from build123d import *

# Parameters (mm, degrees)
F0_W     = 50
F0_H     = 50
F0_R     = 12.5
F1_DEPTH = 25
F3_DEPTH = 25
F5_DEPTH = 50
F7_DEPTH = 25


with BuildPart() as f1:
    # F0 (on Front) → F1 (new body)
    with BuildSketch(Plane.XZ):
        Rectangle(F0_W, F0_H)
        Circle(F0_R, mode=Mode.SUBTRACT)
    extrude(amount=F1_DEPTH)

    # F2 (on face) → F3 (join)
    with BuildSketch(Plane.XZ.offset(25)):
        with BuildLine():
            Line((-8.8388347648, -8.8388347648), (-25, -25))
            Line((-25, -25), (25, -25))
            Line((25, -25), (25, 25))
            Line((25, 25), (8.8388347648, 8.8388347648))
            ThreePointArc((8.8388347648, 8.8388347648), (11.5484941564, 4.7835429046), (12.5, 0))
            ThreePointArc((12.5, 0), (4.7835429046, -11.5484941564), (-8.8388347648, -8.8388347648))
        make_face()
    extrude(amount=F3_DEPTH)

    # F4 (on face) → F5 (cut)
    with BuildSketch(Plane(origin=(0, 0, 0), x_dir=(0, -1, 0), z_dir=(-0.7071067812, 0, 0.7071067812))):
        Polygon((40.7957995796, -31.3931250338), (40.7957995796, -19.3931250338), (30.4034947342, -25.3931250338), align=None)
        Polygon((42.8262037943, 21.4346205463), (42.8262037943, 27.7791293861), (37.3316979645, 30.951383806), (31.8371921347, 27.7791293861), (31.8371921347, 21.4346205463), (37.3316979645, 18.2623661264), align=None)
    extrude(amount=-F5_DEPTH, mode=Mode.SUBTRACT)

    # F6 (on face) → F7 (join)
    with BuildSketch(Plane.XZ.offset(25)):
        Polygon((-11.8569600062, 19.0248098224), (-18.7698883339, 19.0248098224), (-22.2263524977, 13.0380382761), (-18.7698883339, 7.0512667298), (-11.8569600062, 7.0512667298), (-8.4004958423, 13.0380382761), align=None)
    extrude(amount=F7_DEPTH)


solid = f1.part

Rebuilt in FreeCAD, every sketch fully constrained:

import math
import FreeCAD as App
import Part
import Sketcher
from FreeCAD import Vector
Q = App.Units.Quantity

doc = App.newDocument("Part")
body = doc.addObject("PartDesign::Body", "Body")

# Sketch on XZ plane
sketch1 = doc.addObject("Sketcher::SketchObject", "Sketch")
body.addObject(sketch1)
sketch1.AttachmentSupport = (doc.XZ_Plane, [""])
sketch1.MapMode = "FlatFace"
sketch1.addGeometry(Part.LineSegment(Vector(-25, 25, 0), Vector(-25, -25, 0)), False)
sketch1.addGeometry(Part.LineSegment(Vector(-25, -25, 0), Vector(25, -25, 0)), False)
sketch1.addGeometry(Part.LineSegment(Vector(25, -25, 0), Vector(25, 25, 0)), False)
sketch1.addGeometry(Part.LineSegment(Vector(25, 25, 0), Vector(-25, 25, 0)), False)
sketch1.addGeometry(Part.Circle(Vector(0, 0, 0), Vector(0, 0, 1), 12.5), False)
sketch1.addConstraint(Sketcher.Constraint("Coincident", 0, 2, 1, 1))
sketch1.addConstraint(Sketcher.Constraint("Coincident", 1, 2, 2, 1))
sketch1.addConstraint(Sketcher.Constraint("Coincident", 2, 2, 3, 1))
sketch1.addConstraint(Sketcher.Constraint("Coincident", 3, 2, 0, 1))
sketch1.addConstraint(Sketcher.Constraint("Vertical", 0))
sketch1.addConstraint(Sketcher.Constraint("Horizontal", 1))
sketch1.addConstraint(Sketcher.Constraint("Vertical", 2))
sketch1.addConstraint(Sketcher.Constraint("Horizontal", 3))
sketch1.addConstraint(Sketcher.Constraint("Coincident", 4, 3, -1, 1))
sketch1.addConstraint(Sketcher.Constraint("Symmetric", 0, 2, 2, 2, -1, 1))
sketch1.addConstraint(Sketcher.Constraint("Equal", 3, 0))
sketch1.addConstraint(Sketcher.Constraint("Diameter", 4, 25.0))
sketch1.addConstraint(Sketcher.Constraint("DistanceX", 1, 1, 1, 2, 50.0))
pad1 = doc.addObject("PartDesign::Pad", "Pad")
body.addObject(pad1)
pad1.Profile = sketch1
pad1.Length = 25

# Sketch on XZ plane
sketch2 = doc.addObject("Sketcher::SketchObject", "Sketch001")
body.addObject(sketch2)
sketch2.AttachmentSupport = (doc.XZ_Plane, [""])
sketch2.MapMode = "FlatFace"
sketch2.AttachmentOffset = App.Placement(Vector(0, 0, 25), App.Rotation())
sketch2.addGeometry(Part.LineSegment(Vector(-8.838835, -8.838835, 0), Vector(-25, -25, 0)), False)
sketch2.addGeometry(Part.LineSegment(Vector(-25, -25, 0), Vector(25, -25, 0)), False)
sketch2.addGeometry(Part.LineSegment(Vector(25, -25, 0), Vector(25, 25, 0)), False)
sketch2.addGeometry(Part.LineSegment(Vector(25, 25, 0), Vector(8.838835, 8.838835, 0)), False)
sketch2.addGeometry(Part.ArcOfCircle(Part.Circle(Vector(0, 0, 0), Vector(0, 0, 1), 12.5), math.radians(0), math.radians(45)), False)
sketch2.addGeometry(Part.ArcOfCircle(Part.Circle(Vector(0, 0, 0), Vector(0, 0, 1), 12.5), math.radians(-135), math.radians(0)), False)
sketch2.addConstraint(Sketcher.Constraint("Coincident", 0, 2, 1, 1))
sketch2.addConstraint(Sketcher.Constraint("Coincident", 1, 2, 2, 1))
sketch2.addConstraint(Sketcher.Constraint("Coincident", 2, 2, 3, 1))
sketch2.addConstraint(Sketcher.Constraint("Coincident", 3, 2, 4, 2))
sketch2.addConstraint(Sketcher.Constraint("Tangent", 4, 1, 5, 2))
sketch2.addConstraint(Sketcher.Constraint("Coincident", 5, 1, 0, 1))
sketch2.addConstraint(Sketcher.Constraint("Horizontal", 1))
sketch2.addConstraint(Sketcher.Constraint("Vertical", 2))
sketch2.addConstraint(Sketcher.Constraint("Coincident", 4, 3, -1, 1))
sketch2.addConstraint(Sketcher.Constraint("Equal", 4, 5))
sketch2.addConstraint(Sketcher.Constraint("Symmetric", 0, 2, 2, 2, -1, 1))
sketch2.addConstraint(Sketcher.Constraint("PointOnObject", 4, 1, -1))
sketch2.addConstraint(Sketcher.Constraint("Parallel", 0, 3))
sketch2.addConstraint(Sketcher.Constraint("Equal", 1, 2))
sketch2.addConstraint(Sketcher.Constraint("Radius", 4, 12.5))
sketch2.addConstraint(Sketcher.Constraint("DistanceX", 1, 1, 1, 2, 50.0))
sketch2.addConstraint(Sketcher.Constraint("Angle", 0, Q("-135 deg")))
pad2 = doc.addObject("PartDesign::Pad", "Pad001")
body.addObject(pad2)
pad2.Profile = sketch2
pad2.Length = 25

# Sketch on an angled plane
sketch3 = doc.addObject("Sketcher::SketchObject", "Sketch002")
body.addObject(sketch3)
sketch3.Placement = App.Placement(Vector(0, 0, 0), App.Rotation(Vector(0, -1, 0), Vector(0.707106781, 0, 0.707106781), Vector(-0.707106781, 0, 0.707106781), "ZXY"))
sketch3.addGeometry(Part.LineSegment(Vector(40.7958, -31.393125, 0), Vector(40.7958, -19.393125, 0)), False)
sketch3.addGeometry(Part.LineSegment(Vector(40.7958, -19.393125, 0), Vector(30.403495, -25.393125, 0)), False)
sketch3.addGeometry(Part.LineSegment(Vector(30.403495, -25.393125, 0), Vector(40.7958, -31.393125, 0)), False)
sketch3.addGeometry(Part.LineSegment(Vector(42.826204, 21.434621, 0), Vector(42.826204, 27.779129, 0)), False)
sketch3.addGeometry(Part.LineSegment(Vector(42.826204, 27.779129, 0), Vector(37.331698, 30.951384, 0)), False)
sketch3.addGeometry(Part.LineSegment(Vector(37.331698, 30.951384, 0), Vector(31.837192, 27.779129, 0)), False)
sketch3.addGeometry(Part.LineSegment(Vector(31.837192, 27.779129, 0), Vector(31.837192, 21.434621, 0)), False)
sketch3.addGeometry(Part.LineSegment(Vector(31.837192, 21.434621, 0), Vector(37.331698, 18.262366, 0)), False)
sketch3.addGeometry(Part.LineSegment(Vector(37.331698, 18.262366, 0), Vector(42.826204, 21.434621, 0)), False)
sketch3.addConstraint(Sketcher.Constraint("Coincident", 0, 2, 1, 1))
sketch3.addConstraint(Sketcher.Constraint("Coincident", 1, 2, 2, 1))
sketch3.addConstraint(Sketcher.Constraint("Coincident", 2, 2, 0, 1))
sketch3.addConstraint(Sketcher.Constraint("Coincident", 3, 2, 4, 1))
sketch3.addConstraint(Sketcher.Constraint("Coincident", 4, 2, 5, 1))
sketch3.addConstraint(Sketcher.Constraint("Coincident", 5, 2, 6, 1))
sketch3.addConstraint(Sketcher.Constraint("Coincident", 6, 2, 7, 1))
sketch3.addConstraint(Sketcher.Constraint("Coincident", 7, 2, 8, 1))
sketch3.addConstraint(Sketcher.Constraint("Coincident", 8, 2, 3, 1))
sketch3.addConstraint(Sketcher.Constraint("Vertical", 0))
sketch3.addConstraint(Sketcher.Constraint("Vertical", 3))
sketch3.addConstraint(Sketcher.Constraint("Vertical", 6))
sketch3.addConstraint(Sketcher.Constraint("Parallel", 2, 4))
sketch3.addConstraint(Sketcher.Constraint("Parallel", 1, 5))
sketch3.addConstraint(Sketcher.Constraint("Parallel", 4, 7))
sketch3.addConstraint(Sketcher.Constraint("Parallel", 5, 8))
sketch3.addConstraint(Sketcher.Constraint("Horizontal", 3, 2, 5, 2))
sketch3.addConstraint(Sketcher.Constraint("Horizontal", 6, 2, 8, 2))
sketch3.addConstraint(Sketcher.Constraint("Vertical", 4, 2, 7, 2))
sketch3.addConstraint(Sketcher.Constraint("DistanceY", 0, 1, 0, 2, 12.0))
sketch3.addConstraint(Sketcher.Constraint("Angle", 1, Q("-150 deg")))
sketch3.addConstraint(Sketcher.Constraint("DistanceY", 3, 1, 3, 2, 6.344509))
sketch3.addConstraint(Sketcher.Constraint("DistanceX", -1, 1, 0, 2, 40.7958))
sketch3.addConstraint(Sketcher.Constraint("DistanceX", 4, 2, 0, 2, 3.464102))
sketch3.addConstraint(Sketcher.Constraint("Distance", 4, 6.344509))
sketch3.addConstraint(Sketcher.Constraint("DistanceY", -1, 1, 3, 2, 27.779129))
sketch3.addConstraint(Sketcher.Constraint("DistanceY", 0, 2, 4, 2, 50.344509))
pocket1 = doc.addObject("PartDesign::Pocket", "Pocket")
body.addObject(pocket1)
pocket1.Profile = sketch3
pocket1.Length = 50

# Sketch on XZ plane
sketch4 = doc.addObject("Sketcher::SketchObject", "Sketch003")
body.addObject(sketch4)
sketch4.AttachmentSupport = (doc.XZ_Plane, [""])
sketch4.MapMode = "FlatFace"
sketch4.AttachmentOffset = App.Placement(Vector(0, 0, 25), App.Rotation())
sketch4.addGeometry(Part.LineSegment(Vector(-11.85696, 19.02481, 0), Vector(-18.769888, 19.02481, 0)), False)
sketch4.addGeometry(Part.LineSegment(Vector(-18.769888, 19.02481, 0), Vector(-22.226352, 13.038038, 0)), False)
sketch4.addGeometry(Part.LineSegment(Vector(-22.226352, 13.038038, 0), Vector(-18.769888, 7.051267, 0)), False)
sketch4.addGeometry(Part.LineSegment(Vector(-18.769888, 7.051267, 0), Vector(-11.85696, 7.051267, 0)), False)
sketch4.addGeometry(Part.LineSegment(Vector(-11.85696, 7.051267, 0), Vector(-8.400496, 13.038038, 0)), False)
sketch4.addGeometry(Part.LineSegment(Vector(-8.400496, 13.038038, 0), Vector(-11.85696, 19.02481, 0)), False)
sketch4.addConstraint(Sketcher.Constraint("Coincident", 0, 2, 1, 1))
sketch4.addConstraint(Sketcher.Constraint("Coincident", 1, 2, 2, 1))
sketch4.addConstraint(Sketcher.Constraint("Coincident", 2, 2, 3, 1))
sketch4.addConstraint(Sketcher.Constraint("Coincident", 3, 2, 4, 1))
sketch4.addConstraint(Sketcher.Constraint("Coincident", 4, 2, 5, 1))
sketch4.addConstraint(Sketcher.Constraint("Coincident", 5, 2, 0, 1))
sketch4.addConstraint(Sketcher.Constraint("Horizontal", 0))
sketch4.addConstraint(Sketcher.Constraint("Horizontal", 3))
sketch4.addConstraint(Sketcher.Constraint("Parallel", 1, 4))
sketch4.addConstraint(Sketcher.Constraint("Parallel", 2, 5))
sketch4.addConstraint(Sketcher.Constraint("Horizontal", 1, 2, 4, 2))
sketch4.addConstraint(Sketcher.Constraint("Vertical", 0, 2, 2, 2))
sketch4.addConstraint(Sketcher.Constraint("Vertical", 3, 2, 5, 2))
sketch4.addConstraint(Sketcher.Constraint("Angle", 1, Q("-120 deg")))
sketch4.addConstraint(Sketcher.Constraint("DistanceX", 0, 2, 0, 1, 6.912928))
sketch4.addConstraint(Sketcher.Constraint("Distance", 1, 6.912928))
sketch4.addConstraint(Sketcher.Constraint("DistanceX", 0, 2, -1, 1, 18.769888))
sketch4.addConstraint(Sketcher.Constraint("DistanceY", -1, 1, 0, 2, 19.02481))
pad3 = doc.addObject("PartDesign::Pad", "Pad002")
body.addObject(pad3)
pad3.Profile = sketch4
pad3.Length = 25

doc.recompute()
